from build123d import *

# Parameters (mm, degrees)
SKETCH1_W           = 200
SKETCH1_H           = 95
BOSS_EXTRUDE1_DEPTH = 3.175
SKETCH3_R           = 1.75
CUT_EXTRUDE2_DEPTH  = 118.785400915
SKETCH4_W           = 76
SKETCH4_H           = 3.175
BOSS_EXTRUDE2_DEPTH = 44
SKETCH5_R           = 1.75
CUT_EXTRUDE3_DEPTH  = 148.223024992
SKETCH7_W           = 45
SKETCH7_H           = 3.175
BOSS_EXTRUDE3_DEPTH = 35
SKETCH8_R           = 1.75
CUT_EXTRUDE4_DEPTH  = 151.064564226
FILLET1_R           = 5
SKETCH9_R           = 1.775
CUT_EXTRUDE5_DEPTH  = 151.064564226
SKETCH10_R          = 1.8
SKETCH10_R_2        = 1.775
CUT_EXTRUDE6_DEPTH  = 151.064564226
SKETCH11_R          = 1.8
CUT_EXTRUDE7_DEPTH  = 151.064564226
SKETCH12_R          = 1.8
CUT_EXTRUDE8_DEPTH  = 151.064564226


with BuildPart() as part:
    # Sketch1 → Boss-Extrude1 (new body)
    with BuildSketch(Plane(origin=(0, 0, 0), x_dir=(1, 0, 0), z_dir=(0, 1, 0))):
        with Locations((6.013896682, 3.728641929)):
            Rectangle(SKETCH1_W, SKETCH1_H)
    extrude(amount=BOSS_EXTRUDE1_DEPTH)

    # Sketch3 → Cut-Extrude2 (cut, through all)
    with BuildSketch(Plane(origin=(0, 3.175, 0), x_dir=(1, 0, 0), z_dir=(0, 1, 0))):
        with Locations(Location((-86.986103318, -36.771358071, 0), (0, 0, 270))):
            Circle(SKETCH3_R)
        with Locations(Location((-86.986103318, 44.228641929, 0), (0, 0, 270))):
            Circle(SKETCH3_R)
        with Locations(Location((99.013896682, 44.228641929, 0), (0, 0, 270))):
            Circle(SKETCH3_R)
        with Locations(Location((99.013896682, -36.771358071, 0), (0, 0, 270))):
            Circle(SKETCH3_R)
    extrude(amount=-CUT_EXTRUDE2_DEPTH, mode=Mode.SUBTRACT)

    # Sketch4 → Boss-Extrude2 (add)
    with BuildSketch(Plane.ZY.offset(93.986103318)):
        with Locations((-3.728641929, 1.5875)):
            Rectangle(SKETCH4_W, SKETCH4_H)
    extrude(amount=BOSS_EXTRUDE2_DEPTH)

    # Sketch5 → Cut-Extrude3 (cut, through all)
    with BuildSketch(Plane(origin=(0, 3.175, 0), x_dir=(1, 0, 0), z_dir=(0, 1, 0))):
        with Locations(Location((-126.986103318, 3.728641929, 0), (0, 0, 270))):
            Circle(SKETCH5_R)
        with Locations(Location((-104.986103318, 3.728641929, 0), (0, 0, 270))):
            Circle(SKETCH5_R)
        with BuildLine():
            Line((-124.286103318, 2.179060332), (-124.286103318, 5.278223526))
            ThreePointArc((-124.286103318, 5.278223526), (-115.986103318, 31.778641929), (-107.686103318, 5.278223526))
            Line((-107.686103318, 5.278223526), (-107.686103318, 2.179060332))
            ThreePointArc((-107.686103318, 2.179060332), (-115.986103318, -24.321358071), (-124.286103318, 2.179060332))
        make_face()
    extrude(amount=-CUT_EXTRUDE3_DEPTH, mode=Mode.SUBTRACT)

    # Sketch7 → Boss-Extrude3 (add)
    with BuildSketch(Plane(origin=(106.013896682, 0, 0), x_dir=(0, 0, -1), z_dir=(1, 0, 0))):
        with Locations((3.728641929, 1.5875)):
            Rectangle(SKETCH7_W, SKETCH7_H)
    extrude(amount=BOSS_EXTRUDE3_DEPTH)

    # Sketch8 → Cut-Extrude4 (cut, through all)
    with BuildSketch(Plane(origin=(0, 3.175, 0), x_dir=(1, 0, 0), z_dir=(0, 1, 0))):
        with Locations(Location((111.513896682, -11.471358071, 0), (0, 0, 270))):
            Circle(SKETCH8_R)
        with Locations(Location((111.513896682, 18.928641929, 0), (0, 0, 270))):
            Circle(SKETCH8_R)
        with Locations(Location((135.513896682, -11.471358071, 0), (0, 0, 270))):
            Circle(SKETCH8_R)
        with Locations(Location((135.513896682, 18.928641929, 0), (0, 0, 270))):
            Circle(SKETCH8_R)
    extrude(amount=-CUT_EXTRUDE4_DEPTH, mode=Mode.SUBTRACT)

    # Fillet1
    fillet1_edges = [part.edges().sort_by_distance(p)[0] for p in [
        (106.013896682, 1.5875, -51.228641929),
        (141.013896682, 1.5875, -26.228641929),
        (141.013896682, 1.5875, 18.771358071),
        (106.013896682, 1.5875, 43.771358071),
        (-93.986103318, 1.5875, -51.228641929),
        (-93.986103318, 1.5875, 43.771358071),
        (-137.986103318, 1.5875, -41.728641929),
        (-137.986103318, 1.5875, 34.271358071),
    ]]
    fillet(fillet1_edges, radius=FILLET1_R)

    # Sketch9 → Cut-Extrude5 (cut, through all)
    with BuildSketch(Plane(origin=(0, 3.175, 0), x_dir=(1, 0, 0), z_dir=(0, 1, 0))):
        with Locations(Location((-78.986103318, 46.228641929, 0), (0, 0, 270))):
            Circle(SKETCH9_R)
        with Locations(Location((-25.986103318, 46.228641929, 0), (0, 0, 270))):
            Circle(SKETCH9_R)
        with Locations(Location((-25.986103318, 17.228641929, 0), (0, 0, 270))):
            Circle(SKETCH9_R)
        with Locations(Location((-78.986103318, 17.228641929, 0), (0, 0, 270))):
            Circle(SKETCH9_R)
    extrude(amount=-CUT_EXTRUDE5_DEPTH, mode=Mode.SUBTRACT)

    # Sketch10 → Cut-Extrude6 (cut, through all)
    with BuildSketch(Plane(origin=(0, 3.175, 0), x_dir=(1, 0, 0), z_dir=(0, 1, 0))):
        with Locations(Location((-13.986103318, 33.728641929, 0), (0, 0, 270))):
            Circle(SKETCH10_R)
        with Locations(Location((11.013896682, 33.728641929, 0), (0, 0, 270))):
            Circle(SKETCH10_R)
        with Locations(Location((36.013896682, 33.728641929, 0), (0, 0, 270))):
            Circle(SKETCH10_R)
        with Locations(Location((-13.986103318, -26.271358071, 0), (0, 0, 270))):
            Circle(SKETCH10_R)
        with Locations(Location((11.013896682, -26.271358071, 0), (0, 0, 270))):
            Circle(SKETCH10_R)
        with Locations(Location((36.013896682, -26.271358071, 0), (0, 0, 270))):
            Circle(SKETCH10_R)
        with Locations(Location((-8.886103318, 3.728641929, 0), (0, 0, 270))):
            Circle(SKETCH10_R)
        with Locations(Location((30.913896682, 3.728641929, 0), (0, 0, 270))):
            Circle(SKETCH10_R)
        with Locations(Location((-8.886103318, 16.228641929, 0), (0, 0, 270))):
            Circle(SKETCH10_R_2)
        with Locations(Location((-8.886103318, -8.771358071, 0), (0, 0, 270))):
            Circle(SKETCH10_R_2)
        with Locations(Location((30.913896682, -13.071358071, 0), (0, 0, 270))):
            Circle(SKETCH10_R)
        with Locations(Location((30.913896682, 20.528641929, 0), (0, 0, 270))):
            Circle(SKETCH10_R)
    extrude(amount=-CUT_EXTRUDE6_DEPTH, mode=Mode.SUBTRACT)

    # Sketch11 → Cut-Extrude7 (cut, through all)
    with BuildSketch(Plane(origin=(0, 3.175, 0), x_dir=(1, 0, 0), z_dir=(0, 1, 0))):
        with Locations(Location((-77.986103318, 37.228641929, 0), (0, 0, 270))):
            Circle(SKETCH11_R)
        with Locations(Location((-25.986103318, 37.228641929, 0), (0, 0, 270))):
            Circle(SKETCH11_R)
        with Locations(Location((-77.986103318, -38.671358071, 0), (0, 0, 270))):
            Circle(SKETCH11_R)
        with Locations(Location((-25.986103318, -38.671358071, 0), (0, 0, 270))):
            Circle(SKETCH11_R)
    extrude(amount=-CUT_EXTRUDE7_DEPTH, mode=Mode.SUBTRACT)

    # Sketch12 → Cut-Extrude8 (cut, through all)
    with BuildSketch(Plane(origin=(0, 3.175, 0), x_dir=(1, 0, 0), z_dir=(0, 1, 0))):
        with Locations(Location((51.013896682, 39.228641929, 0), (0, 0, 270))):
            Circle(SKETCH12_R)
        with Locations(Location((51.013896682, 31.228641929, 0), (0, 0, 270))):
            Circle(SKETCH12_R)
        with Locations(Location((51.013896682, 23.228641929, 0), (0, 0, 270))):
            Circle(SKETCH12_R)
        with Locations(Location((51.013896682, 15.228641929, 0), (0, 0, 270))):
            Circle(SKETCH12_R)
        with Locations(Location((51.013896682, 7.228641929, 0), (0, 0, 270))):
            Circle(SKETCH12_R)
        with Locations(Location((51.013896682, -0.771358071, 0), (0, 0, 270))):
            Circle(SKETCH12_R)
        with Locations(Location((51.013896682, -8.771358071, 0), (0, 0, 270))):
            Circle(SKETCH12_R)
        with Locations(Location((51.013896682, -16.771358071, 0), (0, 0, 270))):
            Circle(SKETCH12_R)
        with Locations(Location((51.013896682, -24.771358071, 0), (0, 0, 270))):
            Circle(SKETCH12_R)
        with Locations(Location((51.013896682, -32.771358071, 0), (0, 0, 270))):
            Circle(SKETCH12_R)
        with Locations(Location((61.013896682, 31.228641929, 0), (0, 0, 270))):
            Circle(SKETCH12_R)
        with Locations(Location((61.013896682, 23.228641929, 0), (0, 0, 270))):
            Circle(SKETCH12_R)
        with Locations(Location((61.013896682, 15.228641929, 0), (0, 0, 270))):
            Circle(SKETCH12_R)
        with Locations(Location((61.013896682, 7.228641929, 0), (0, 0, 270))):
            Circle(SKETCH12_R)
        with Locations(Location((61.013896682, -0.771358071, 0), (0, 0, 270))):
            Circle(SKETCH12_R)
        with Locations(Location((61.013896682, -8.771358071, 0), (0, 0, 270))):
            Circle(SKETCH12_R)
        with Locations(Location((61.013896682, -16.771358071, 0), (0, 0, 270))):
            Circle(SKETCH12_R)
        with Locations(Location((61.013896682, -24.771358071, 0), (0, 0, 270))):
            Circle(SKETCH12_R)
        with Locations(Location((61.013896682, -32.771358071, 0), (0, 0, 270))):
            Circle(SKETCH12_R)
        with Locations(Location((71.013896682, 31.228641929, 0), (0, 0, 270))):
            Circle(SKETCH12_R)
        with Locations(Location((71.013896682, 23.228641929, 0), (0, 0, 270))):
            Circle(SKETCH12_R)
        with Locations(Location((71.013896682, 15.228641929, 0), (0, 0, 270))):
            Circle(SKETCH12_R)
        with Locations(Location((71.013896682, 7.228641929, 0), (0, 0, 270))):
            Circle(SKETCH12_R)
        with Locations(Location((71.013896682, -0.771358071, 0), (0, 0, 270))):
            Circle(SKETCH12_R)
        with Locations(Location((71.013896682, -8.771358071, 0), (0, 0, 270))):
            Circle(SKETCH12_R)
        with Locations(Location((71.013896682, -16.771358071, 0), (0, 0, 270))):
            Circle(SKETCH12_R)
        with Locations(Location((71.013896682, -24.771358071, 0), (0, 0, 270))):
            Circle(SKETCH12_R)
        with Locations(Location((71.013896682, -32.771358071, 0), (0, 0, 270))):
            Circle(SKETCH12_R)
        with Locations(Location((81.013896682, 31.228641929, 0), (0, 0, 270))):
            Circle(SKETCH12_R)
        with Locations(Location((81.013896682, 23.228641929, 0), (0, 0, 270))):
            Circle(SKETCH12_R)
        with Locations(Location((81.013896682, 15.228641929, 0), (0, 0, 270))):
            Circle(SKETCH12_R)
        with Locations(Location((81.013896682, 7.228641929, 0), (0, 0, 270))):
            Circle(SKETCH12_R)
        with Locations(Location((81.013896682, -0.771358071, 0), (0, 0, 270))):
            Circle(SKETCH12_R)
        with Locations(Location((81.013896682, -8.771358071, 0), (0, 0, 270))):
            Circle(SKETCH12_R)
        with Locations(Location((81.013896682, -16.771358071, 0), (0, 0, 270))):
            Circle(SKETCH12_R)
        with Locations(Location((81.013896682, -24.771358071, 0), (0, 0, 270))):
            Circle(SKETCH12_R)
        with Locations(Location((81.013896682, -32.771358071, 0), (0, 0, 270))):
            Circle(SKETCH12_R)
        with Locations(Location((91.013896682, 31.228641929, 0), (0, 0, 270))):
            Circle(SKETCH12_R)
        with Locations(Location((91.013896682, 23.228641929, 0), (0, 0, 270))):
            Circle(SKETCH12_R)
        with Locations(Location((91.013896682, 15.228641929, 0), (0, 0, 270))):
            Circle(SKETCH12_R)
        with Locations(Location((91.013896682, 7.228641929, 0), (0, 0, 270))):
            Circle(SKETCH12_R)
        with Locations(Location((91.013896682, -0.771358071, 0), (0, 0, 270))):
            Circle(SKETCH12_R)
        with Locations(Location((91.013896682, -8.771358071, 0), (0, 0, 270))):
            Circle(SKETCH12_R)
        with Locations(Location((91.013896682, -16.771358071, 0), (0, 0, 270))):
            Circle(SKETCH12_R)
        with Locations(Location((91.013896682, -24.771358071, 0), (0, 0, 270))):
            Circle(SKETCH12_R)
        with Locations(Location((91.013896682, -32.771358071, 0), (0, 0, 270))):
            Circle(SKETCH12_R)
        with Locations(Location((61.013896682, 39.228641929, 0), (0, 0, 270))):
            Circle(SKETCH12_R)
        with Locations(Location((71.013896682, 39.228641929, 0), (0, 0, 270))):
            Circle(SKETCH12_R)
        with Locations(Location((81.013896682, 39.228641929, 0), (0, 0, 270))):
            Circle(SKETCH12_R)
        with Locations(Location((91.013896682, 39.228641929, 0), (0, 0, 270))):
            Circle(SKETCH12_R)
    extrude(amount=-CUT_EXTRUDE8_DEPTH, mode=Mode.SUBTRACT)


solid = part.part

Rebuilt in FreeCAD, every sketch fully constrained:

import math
import FreeCAD as App
import Part
import Sketcher
from FreeCAD import Vector


def edges_at(feature, points):
    """Names of the edges that pass closest to the given points."""
    edges = feature.Shape.Edges
    near = lambda p: min(range(len(edges)), key=lambda i: edges[i].distToShape(Part.Vertex(*p))[0])
    return sorted({f"Edge{near(p) + 1}" for p in points})


def add_polygon(sketch, points):
    """Adds a closed chain of lines whose ends are joined by coincident constraints."""
    first, n = sketch.GeometryCount, len(points)
    for a, b in zip(points, points[1:] + points[:1]):
        sketch.addGeometry(Part.LineSegment(App.Vector(*a, 0), App.Vector(*b, 0)), False)
    for i in range(n):
        sketch.addConstraint(Sketcher.Constraint("Coincident", first + i, 2, first + (i + 1) % n, 1))

doc = App.newDocument("Part")
body = doc.addObject("PartDesign::Body", "Body")

sketch1 = doc.addObject("Sketcher::SketchObject", "Sketch")
body.addObject(sketch1)
sketch1.AttachmentSupport = (doc.XZ_Plane, [""])
sketch1.MapMode = "FlatFace"
add_polygon(sketch1, [(-94, -51), (-94, 44), (106, 44), (106, -51)])
sketch1.addConstraint([
    Sketcher.Constraint("Vertical", 0),
    Sketcher.Constraint("Horizontal", 1),
    Sketcher.Constraint("Vertical", 2),
    Sketcher.Constraint("Horizontal", 3),
    Sketcher.Constraint("DistanceX", 1, 1, 1, 2, 200.0),
    Sketcher.Constraint("DistanceY", 0, 1, 0, 2, 95.0),
    Sketcher.Constraint("DistanceY", -1, 1, 0, 2, 43.771358),
    Sketcher.Constraint("DistanceX", 0, 2, -1, 1, 93.986103),
])
pad1 = doc.addObject("PartDesign::Pad", "Pad")
body.addObject(pad1)
pad1.Profile = sketch1
pad1.Length = 3.175
pad1.Reversed = True

sketch2 = doc.addObject("Sketcher::SketchObject", "Sketch001")
body.addObject(sketch2)
sketch2.AttachmentSupport = (doc.XZ_Plane, [""])
sketch2.MapMode = "FlatFace"
sketch2.AttachmentOffset = App.Placement(Vector(0, 0, -3.175), App.Rotation())
sketch2.addGeometry([
    Part.Circle(Vector(-87, 36.8, 0), Vector(0, 0, 1), 1.8),
    Part.Circle(Vector(-87, -44.2, 0), Vector(0, 0, 1), 1.8),
    Part.Circle(Vector(99, -44.2, 0), Vector(0, 0, 1), 1.8),
    Part.Circle(Vector(99, 36.8, 0), Vector(0, 0, 1), 1.8),
], False)
sketch2.addConstraint([
    Sketcher.Constraint("Equal", 0, 1),
    Sketcher.Constraint("Equal", 1, 2),
    Sketcher.Constraint("Equal", 2, 3),
    Sketcher.Constraint("Horizontal", 1, 3, 2, 3),
    Sketcher.Constraint("Horizontal", 0, 3, 3, 3),
    Sketcher.Constraint("Vertical", 0, 3, 1, 3),
    Sketcher.Constraint("Vertical", 2, 3, 3, 3),
    Sketcher.Constraint("Diameter", 0, 3.5),
    Sketcher.Constraint("DistanceY", 1, 3, 0, 3, 81.0),
    Sketcher.Constraint("DistanceX", 1, 3, 2, 3, 186.0),
    Sketcher.Constraint("DistanceY", -1, 1, 0, 3, 36.771358),
    Sketcher.Constraint("DistanceX", 0, 3, -1, 1, 86.986103),
])
pocket1 = doc.addObject("PartDesign::Pocket", "Pocket")
body.addObject(pocket1)
pocket1.Profile = sketch2
pocket1.Type = "ThroughAll"
pocket1.Reversed = True

sketch3 = doc.addObject("Sketcher::SketchObject", "Sketch002")
body.addObject(sketch3)
sketch3.AttachmentSupport = (doc.YZ_Plane, [""])
sketch3.MapMode = "FlatFace"
sketch3.AttachmentOffset = App.Placement(Vector(0, 0, -93.986103), App.Rotation())
add_polygon(sketch3, [(3.2, -41.7), (0, -41.7), (0, 34.3), (3.2, 34.3)])
sketch3.addConstraint([
    Sketcher.Constraint("Horizontal", 0),
    Sketcher.Constraint("Vertical", 1),
    Sketcher.Constraint("Horizontal", 2),
    Sketcher.Constraint("Vertical", 3),
    Sketcher.Constraint("PointOnObject", 0, 2, -2),
    Sketcher.Constraint("DistanceY", 1, 1, 1, 2, 76.0),
    Sketcher.Constraint("DistanceX", 0, 2, 0, 1, 3.175),
    Sketcher.Constraint("DistanceY", 0, 2, -1, 1, 41.728642),
])
pad2 = doc.addObject("PartDesign::Pad", "Pad001")
body.addObject(pad2)
pad2.Profile = sketch3
pad2.Length = 44
pad2.Reversed = True

sketch4 = doc.addObject("Sketcher::SketchObject", "Sketch003")
body.addObject(sketch4)
sketch4.AttachmentSupport = (doc.XZ_Plane, [""])
sketch4.MapMode = "FlatFace"
sketch4.AttachmentOffset = App.Placement(Vector(0, 0, -3.175), App.Rotation())
sketch4.addGeometry([
    Part.Circle(Vector(-127, -3.7, 0), Vector(0, 0, 1), 1.8),
    Part.Circle(Vector(-105, -3.7, 0), Vector(0, 0, 1), 1.8),
    Part.LineSegment(Vector(-124.3, -5.3, 0), Vector(-124.3, -2.2, 0)),
    Part.ArcOfCircle(Part.Circle(Vector(-116, 9.8, 0), Vector(0, 0, 1), 14.6), math.radians(-55), math.radians(235)),
    Part.LineSegment(Vector(-107.7, -2.2, 0), Vector(-107.7, -5.3, 0)),
    Part.ArcOfCircle(Part.Circle(Vector(-116, -17.2, 0), Vector(0, 0, 1), 14.6), math.radians(125), math.radians(415)),
], False)
sketch4.addConstraint([
    Sketcher.Constraint("Coincident", 2, 2, 3, 2),
    Sketcher.Constraint("Coincident", 3, 1, 4, 1),
    Sketcher.Constraint("Coincident", 4, 2, 5, 2),
    Sketcher.Constraint("Coincident", 5, 1, 2, 1),
    Sketcher.Constraint("Vertical", 2),
    Sketcher.Constraint("Vertical", 4),
    Sketcher.Constraint("Equal", 0, 1),
    Sketcher.Constraint("Equal", 3, 5),
    Sketcher.Constraint("Horizontal", 0, 3, 1, 3),
    Sketcher.Constraint("Horizontal", 2, 2, 3, 1),
    Sketcher.Constraint("Horizontal", 4, 2, 5, 1),
    Sketcher.Constraint("Diameter", 0, 3.5),
    Sketcher.Constraint("Radius", 3, 14.55),
    Sketcher.Constraint("DistanceX", 0, 3, 1, 3, 22.0),
    Sketcher.Constraint("DistanceX", 0, 3, 3, 3, 11.0),
    Sketcher.Constraint("DistanceY", 5, 3, 3, 3, 27.0),
    Sketcher.Constraint("DistanceY", 0, 3, 3, 3, 13.5),
    Sketcher.Constraint("DistanceX", 0, 3, 2, 2, 2.7),
    Sketcher.Constraint("DistanceY", 0, 3, -1, 1, 3.728642),
    Sketcher.Constraint("DistanceX", 0, 3, -1, 1, 126.986103),
])
pocket2 = doc.addObject("PartDesign::Pocket", "Pocket001")
body.addObject(pocket2)
pocket2.Profile = sketch4
pocket2.Type = "ThroughAll"
pocket2.Reversed = True

sketch5 = doc.addObject("Sketcher::SketchObject", "Sketch004")
body.addObject(sketch5)
sketch5.AttachmentSupport = (doc.YZ_Plane, [""])
sketch5.MapMode = "FlatFace"
sketch5.AttachmentOffset = App.Placement(Vector(0, 0, 106.013897), App.Rotation())
add_polygon(sketch5, [(3.2, 18.8), (0, 18.8), (0, -26.2), (3.2, -26.2)])
sketch5.addConstraint([
    Sketcher.Constraint("Horizontal", 0),
    Sketcher.Constraint("Vertical", 1),
    Sketcher.Constraint("Horizontal", 2),
    Sketcher.Constraint("Vertical", 3),
    Sketcher.Constraint("PointOnObject", 0, 2, -2),
    Sketcher.Constraint("DistanceY", 1, 2, 1, 1, 45.0),
    Sketcher.Constraint("DistanceX", 0, 2, 0, 1, 3.175),
    Sketcher.Constraint("DistanceY", -1, 1, 0, 2, 18.771358),
])
pad3 = doc.addObject("PartDesign::Pad", "Pad002")
body.addObject(pad3)
pad3.Profile = sketch5
pad3.Length = 35

sketch6 = doc.addObject("Sketcher::SketchObject", "Sketch005")
body.addObject(sketch6)
sketch6.AttachmentSupport = (doc.XZ_Plane, [""])
sketch6.MapMode = "FlatFace"
sketch6.AttachmentOffset = App.Placement(Vector(0, 0, -3.175), App.Rotation())
sketch6.addGeometry([
    Part.Circle(Vector(111.5, 11.5, 0), Vector(0, 0, 1), 1.8),
    Part.Circle(Vector(111.5, -18.9, 0), Vector(0, 0, 1), 1.8),
    Part.Circle(Vector(135.5, 11.5, 0), Vector(0, 0, 1), 1.8),
    Part.Circle(Vector(135.5, -18.9, 0), Vector(0, 0, 1), 1.8),
], False)
sketch6.addConstraint([
    Sketcher.Constraint("Equal", 0, 1),
    Sketcher.Constraint("Equal", 1, 2),
    Sketcher.Constraint("Equal", 2, 3),
    Sketcher.Constraint("Horizontal", 0, 3, 2, 3),
    Sketcher.Constraint("Horizontal", 1, 3, 3, 3),
    Sketcher.Constraint("Vertical", 0, 3, 1, 3),
    Sketcher.Constraint("Vertical", 2, 3, 3, 3),
    Sketcher.Constraint("Diameter", 0, 3.5),
    Sketcher.Constraint("DistanceX", 0, 3, 2, 3, 24.0),
    Sketcher.Constraint("DistanceY", 1, 3, 0, 3, 30.4),
    Sketcher.Constraint("DistanceY", -1, 1, 0, 3, 11.471358),
    Sketcher.Constraint("DistanceX", -1, 1, 0, 3, 111.513897),
])
pocket3 = doc.addObject("PartDesign::Pocket", "Pocket002")
body.addObject(pocket3)
pocket3.Profile = sketch6
pocket3.Type = "ThroughAll"
pocket3.Reversed = True
doc.recompute()

fillet = doc.addObject("PartDesign::Fillet", "Fillet")
body.addObject(fillet)
fillet.Base = (pocket3, edges_at(pocket3, [
    (106.014, 1.587, -51.229),
    (141.014, 1.587, -26.229),
    (141.014, 1.587, 18.771),
    (106.014, 1.587, 43.771),
    (-93.986, 1.587, -51.229),
    (-93.986, 1.587, 43.771),
    (-137.986, 1.587, -41.729),
    (-137.986, 1.587, 34.271),
]))
fillet.Radius = 5

sketch7 = doc.addObject("Sketcher::SketchObject", "Sketch006")
body.addObject(sketch7)
sketch7.AttachmentSupport = (doc.XZ_Plane, [""])
sketch7.MapMode = "FlatFace"
sketch7.AttachmentOffset = App.Placement(Vector(0, 0, -3.175), App.Rotation())
sketch7.addGeometry([
    Part.Circle(Vector(-79, -46.2, 0), Vector(0, 0, 1), 1.8),
    Part.Circle(Vector(-26, -46.2, 0), Vector(0, 0, 1), 1.8),
    Part.Circle(Vector(-26, -17.2, 0), Vector(0, 0, 1), 1.8),
    Part.Circle(Vector(-79, -17.2, 0), Vector(0, 0, 1), 1.8),
], False)
sketch7.addConstraint([
    Sketcher.Constraint("Equal", 0, 1),
    Sketcher.Constraint("Equal", 1, 2),
    Sketcher.Constraint("Equal", 2, 3),
    Sketcher.Constraint("Horizontal", 0, 3, 1, 3),
    Sketcher.Constraint("Horizontal", 2, 3, 3, 3),
    Sketcher.Constraint("Vertical", 1, 3, 2, 3),
    Sketcher.Constraint("Vertical", 0, 3, 3, 3),
    Sketcher.Constraint("Diameter", 0, 3.55),
    Sketcher.Constraint("DistanceX", 0, 3, 1, 3, 53.0),
    Sketcher.Constraint("DistanceY", 1, 3, 2, 3, 29.0),
    Sketcher.Constraint("DistanceY", 0, 3, -1, 1, 46.228642),
    Sketcher.Constraint("DistanceX", 0, 3, -1, 1, 78.986103),
])
pocket4 = doc.addObject("PartDesign::Pocket", "Pocket003")
body.addObject(pocket4)
pocket4.Profile = sketch7
pocket4.Type = "ThroughAll"
pocket4.Reversed = True

sketch8 = doc.addObject("Sketcher::SketchObject", "Sketch007")
body.addObject(sketch8)
sketch8.AttachmentSupport = (doc.XZ_Plane, [""])
sketch8.MapMode = "FlatFace"
sketch8.AttachmentOffset = App.Placement(Vector(0, 0, -3.175), App.Rotation())
sketch8.addGeometry([
    Part.Circle(Vector(-14, -33.7, 0), Vector(0, 0, 1), 1.8),
    Part.Circle(Vector(11, -33.7, 0), Vector(0, 0, 1), 1.8),
    Part.Circle(Vector(36, -33.7, 0), Vector(0, 0, 1), 1.8),
    Part.Circle(Vector(-14, 26.3, 0), Vector(0, 0, 1), 1.8),
    Part.Circle(Vector(11, 26.3, 0), Vector(0, 0, 1), 1.8),
    Part.Circle(Vector(36, 26.3, 0), Vector(0, 0, 1), 1.8),
    Part.Circle(Vector(-8.9, -3.7, 0), Vector(0, 0, 1), 1.8),
    Part.Circle(Vector(30.9, -3.7, 0), Vector(0, 0, 1), 1.8),
    Part.Circle(Vector(-8.9, -16.2, 0), Vector(0, 0, 1), 1.8),
    Part.Circle(Vector(-8.9, 8.8, 0), Vector(0, 0, 1), 1.8),
    Part.Circle(Vector(30.9, 13.1, 0), Vector(0, 0, 1), 1.8),
    Part.Circle(Vector(30.9, -20.5, 0), Vector(0, 0, 1), 1.8),
], False)
sketch8.addConstraint([
    Sketcher.Constraint("Equal", 0, 1),
    Sketcher.Constraint("Equal", 1, 2),
    Sketcher.Constraint("Equal", 2, 3),
    Sketcher.Constraint("Equal", 3, 4),
    Sketcher.Constraint("Equal", 4, 5),
    Sketcher.Constraint("Equal", 5, 6),
    Sketcher.Constraint("Equal", 6, 7),
    Sketcher.Constraint("Equal", 8, 9),
    Sketcher.Constraint("Equal", 7, 10),
    Sketcher.Constraint("Equal", 10, 11),
    Sketcher.Constraint("Horizontal", 0, 3, 1, 3),
    Sketcher.Constraint("Horizontal", 1, 3, 2, 3),
    Sketcher.Constraint("Horizontal", 3, 3, 4, 3),
    Sketcher.Constraint("Horizontal", 4, 3, 5, 3),
    Sketcher.Constraint("Horizontal", 6, 3, 7, 3),
    Sketcher.Constraint("Vertical", 0, 3, 3, 3),
    Sketcher.Constraint("Vertical", 1, 3, 4, 3),
    Sketcher.Constraint("Vertical", 2, 3, 5, 3),
    Sketcher.Constraint("Vertical", 6, 3, 8, 3),
    Sketcher.Constraint("Vertical", 8, 3, 9, 3),
    Sketcher.Constraint("Vertical", 7, 3, 10, 3),
    Sketcher.Constraint("Vertical", 10, 3, 11, 3),
    Sketcher.Constraint("Diameter", 0, 3.6),
    Sketcher.Constraint("Diameter", 8, 3.55),
    Sketcher.Constraint("DistanceX", 0, 3, 1, 3, 25.0),
    Sketcher.Constraint("DistanceX", 1, 3, 2, 3, 25.0),
    Sketcher.Constraint("DistanceY", 0, 3, 3, 3, 60.0),
    Sketcher.Constraint("DistanceY", 0, 3, 6, 3, 30.0),
    Sketcher.Constraint("DistanceY", 8, 3, 9, 3, 25.0),
    Sketcher.Constraint("DistanceX", 0, 3, 6, 3, 5.1),
    Sketcher.Constraint("DistanceX", 7, 3, 2, 3, 5.1),
    Sketcher.Constraint("DistanceY", 8, 3, 6, 3, 12.5),
    Sketcher.Constraint("DistanceY", 10, 3, 5, 3, 13.2),
    Sketcher.Constraint("DistanceY", 2, 3, 11, 3, 13.2),
    Sketcher.Constraint("DistanceY", 0, 3, -1, 1, 33.728642),
    Sketcher.Constraint("DistanceX", 0, 3, -1, 1, 13.986103),
])
pocket5 = doc.addObject("PartDesign::Pocket", "Pocket004")
body.addObject(pocket5)
pocket5.Profile = sketch8
pocket5.Type = "ThroughAll"
pocket5.Reversed = True

sketch9 = doc.addObject("Sketcher::SketchObject", "Sketch008")
body.addObject(sketch9)
sketch9.AttachmentSupport = (doc.XZ_Plane, [""])
sketch9.MapMode = "FlatFace"
sketch9.AttachmentOffset = App.Placement(Vector(0, 0, -3.175), App.Rotation())
sketch9.addGeometry([
    Part.Circle(Vector(-78, -37.2, 0), Vector(0, 0, 1), 1.8),
    Part.Circle(Vector(-26, -37.2, 0), Vector(0, 0, 1), 1.8),
    Part.Circle(Vector(-78, 38.7, 0), Vector(0, 0, 1), 1.8),
    Part.Circle(Vector(-26, 38.7, 0), Vector(0, 0, 1), 1.8),
], False)
sketch9.addConstraint([
    Sketcher.Constraint("Equal", 0, 1),
    Sketcher.Constraint("Equal", 1, 2),
    Sketcher.Constraint("Equal", 2, 3),
    Sketcher.Constraint("Horizontal", 0, 3, 1, 3),
    Sketcher.Constraint("Horizontal", 2, 3, 3, 3),
    Sketcher.Constraint("Vertical", 0, 3, 2, 3),
    Sketcher.Constraint("Vertical", 1, 3, 3, 3),
    Sketcher.Constraint("Diameter", 0, 3.6),
    Sketcher.Constraint("DistanceX", 0, 3, 1, 3, 52.0),
    Sketcher.Constraint("DistanceY", 0, 3, 2, 3, 75.9),
    Sketcher.Constraint("DistanceY", 0, 3, -1, 1, 37.228642),
    Sketcher.Constraint("DistanceX", 0, 3, -1, 1, 77.986103),
])
pocket6 = doc.addObject("PartDesign::Pocket", "Pocket005")
body.addObject(pocket6)
pocket6.Profile = sketch9
pocket6.Type = "ThroughAll"
pocket6.Reversed = True

sketch10 = doc.addObject("Sketcher::SketchObject", "Sketch009")
body.addObject(sketch10)
sketch10.AttachmentSupport = (doc.XZ_Plane, [""])
sketch10.MapMode = "FlatFace"
sketch10.AttachmentOffset = App.Placement(Vector(0, 0, -3.175), App.Rotation())
sketch10.addGeometry([
    Part.Circle(Vector(51, -39.2, 0), Vector(0, 0, 1), 1.8),
    Part.Circle(Vector(51, -31.2, 0), Vector(0, 0, 1), 1.8),
    Part.Circle(Vector(51, -23.2, 0), Vector(0, 0, 1), 1.8),
    Part.Circle(Vector(51, -15.2, 0), Vector(0, 0, 1), 1.8),
    Part.Circle(Vector(51, -7.2, 0), Vector(0, 0, 1), 1.8),
    Part.Circle(Vector(51, 0.8, 0), Vector(0, 0, 1), 1.8),
    Part.Circle(Vector(51, 8.8, 0), Vector(0, 0, 1), 1.8),
    Part.Circle(Vector(51, 16.8, 0), Vector(0, 0, 1), 1.8),
    Part.Circle(Vector(51, 24.8, 0), Vector(0, 0, 1), 1.8),
    Part.Circle(Vector(51, 32.8, 0), Vector(0, 0, 1), 1.8),
    Part.Circle(Vector(61, -31.2, 0), Vector(0, 0, 1), 1.8),
    Part.Circle(Vector(61, -23.2, 0), Vector(0, 0, 1), 1.8),
    Part.Circle(Vector(61, -15.2, 0), Vector(0, 0, 1), 1.8),
    Part.Circle(Vector(61, -7.2, 0), Vector(0, 0, 1), 1.8),
    Part.Circle(Vector(61, 0.8, 0), Vector(0, 0, 1), 1.8),
    Part.Circle(Vector(61, 8.8, 0), Vector(0, 0, 1), 1.8),
    Part.Circle(Vector(61, 16.8, 0), Vector(0, 0, 1), 1.8),
    Part.Circle(Vector(61, 24.8, 0), Vector(0, 0, 1), 1.8),
    Part.Circle(Vector(61, 32.8, 0), Vector(0, 0, 1), 1.8),
    Part.Circle(Vector(71, -31.2, 0), Vector(0, 0, 1), 1.8),
    Part.Circle(Vector(71, -23.2, 0), Vector(0, 0, 1), 1.8),
    Part.Circle(Vector(71, -15.2, 0), Vector(0, 0, 1), 1.8),
    Part.Circle(Vector(71, -7.2, 0), Vector(0, 0, 1), 1.8),
    Part.Circle(Vector(71, 0.8, 0), Vector(0, 0, 1), 1.8),
    Part.Circle(Vector(71, 8.8, 0), Vector(0, 0, 1), 1.8),
    Part.Circle(Vector(71, 16.8, 0), Vector(0, 0, 1), 1.8),
    Part.Circle(Vector(71, 24.8, 0), Vector(0, 0, 1), 1.8),
    Part.Circle(Vector(71, 32.8, 0), Vector(0, 0, 1), 1.8),
    Part.Circle(Vector(81, -31.2, 0), Vector(0, 0, 1), 1.8),
    Part.Circle(Vector(81, -23.2, 0), Vector(0, 0, 1), 1.8),
    Part.Circle(Vector(81, -15.2, 0), Vector(0, 0, 1), 1.8),
    Part.Circle(Vector(81, -7.2, 0), Vector(0, 0, 1), 1.8),
    Part.Circle(Vector(81, 0.8, 0), Vector(0, 0, 1), 1.8),
    Part.Circle(Vector(81, 8.8, 0), Vector(0, 0, 1), 1.8),
    Part.Circle(Vector(81, 16.8, 0), Vector(0, 0, 1), 1.8),
    Part.Circle(Vector(81, 24.8, 0), Vector(0, 0, 1), 1.8),
    Part.Circle(Vector(81, 32.8, 0), Vector(0, 0, 1), 1.8),
    Part.Circle(Vector(91, -31.2, 0), Vector(0, 0, 1), 1.8),
    Part.Circle(Vector(91, -23.2, 0), Vector(0, 0, 1), 1.8),
    Part.Circle(Vector(91, -15.2, 0), Vector(0, 0, 1), 1.8),
    Part.Circle(Vector(91, -7.2, 0), Vector(0, 0, 1), 1.8),
    Part.Circle(Vector(91, 0.8, 0), Vector(0, 0, 1), 1.8),
    Part.Circle(Vector(91, 8.8, 0), Vector(0, 0, 1), 1.8),
    Part.Circle(Vector(91, 16.8, 0), Vector(0, 0, 1), 1.8),
    Part.Circle(Vector(91, 24.8, 0), Vector(0, 0, 1), 1.8),
    Part.Circle(Vector(91, 32.8, 0), Vector(0, 0, 1), 1.8),
    Part.Circle(Vector(61, -39.2, 0), Vector(0, 0, 1), 1.8),
    Part.Circle(Vector(71, -39.2, 0), Vector(0, 0, 1), 1.8),
    Part.Circle(Vector(81, -39.2, 0), Vector(0, 0, 1), 1.8),
    Part.Circle(Vector(91, -39.2, 0), Vector(0, 0, 1), 1.8),
], False)
sketch10.addConstraint([
    Sketcher.Constraint("Equal", 0, 1),
    Sketcher.Constraint("Equal", 1, 2),
    Sketcher.Constraint("Equal", 2, 3),
    Sketcher.Constraint("Equal", 3, 4),
    Sketcher.Constraint("Equal", 4, 5),
    Sketcher.Constraint("Equal", 5, 6),
    Sketcher.Constraint("Equal", 6, 7),
    Sketcher.Constraint("Equal", 7, 8),
    Sketcher.Constraint("Equal", 8, 9),
    Sketcher.Constraint("Equal", 9, 10),
    Sketcher.Constraint("Equal", 10, 11),
    Sketcher.Constraint("Equal", 11, 12),
    Sketcher.Constraint("Equal", 12, 13),
    Sketcher.Constraint("Equal", 13, 14),
    Sketcher.Constraint("Equal", 14, 15),
    Sketcher.Constraint("Equal", 15, 16),
    Sketcher.Constraint("Equal", 16, 17),
    Sketcher.Constraint("Equal", 17, 18),
    Sketcher.Constraint("Equal", 18, 19),
    Sketcher.Constraint("Equal", 19, 20),
    Sketcher.Constraint("Equal", 20, 21),
    Sketcher.Constraint("Equal", 21, 22),
    Sketcher.Constraint("Equal", 22, 23),
    Sketcher.Constraint("Equal", 23, 24),
    Sketcher.Constraint("Equal", 24, 25),
    Sketcher.Constraint("Equal", 25, 26),
    Sketcher.Constraint("Equal", 26, 27),
    Sketcher.Constraint("Equal", 27, 28),
    Sketcher.Constraint("Equal", 28, 29),
    Sketcher.Constraint("Equal", 29, 30),
    Sketcher.Constraint("Equal", 30, 31),
    Sketcher.Constraint("Equal", 31, 32),
    Sketcher.Constraint("Equal", 32, 33),
    Sketcher.Constraint("Equal", 33, 34),
    Sketcher.Constraint("Equal", 34, 35),
    Sketcher.Constraint("Equal", 35, 36),
    Sketcher.Constraint("Equal", 36, 37),
    Sketcher.Constraint("Equal", 37, 38),
    Sketcher.Constraint("Equal", 38, 39),
    Sketcher.Constraint("Equal", 39, 40),
    Sketcher.Constraint("Equal", 40, 41),
    Sketcher.Constraint("Equal", 41, 42),
    Sketcher.Constraint("Equal", 42, 43),
    Sketcher.Constraint("Equal", 43, 44),
    Sketcher.Constraint("Equal", 44, 45),
    Sketcher.Constraint("Equal", 45, 46),
    Sketcher.Constraint("Equal", 46, 47),
    Sketcher.Constraint("Equal", 47, 48),
    Sketcher.Constraint("Equal", 48, 49),
    Sketcher.Constraint("Horizontal", 1, 3, 10, 3),
    Sketcher.Constraint("Horizontal", 2, 3, 11, 3),
    Sketcher.Constraint("Horizontal", 3, 3, 12, 3),
    Sketcher.Constraint("Horizontal", 4, 3, 13, 3),
    Sketcher.Constraint("Horizontal", 5, 3, 14, 3),
    Sketcher.Constraint("Horizontal", 6, 3, 15, 3),
    Sketcher.Constraint("Horizontal", 7, 3, 16, 3),
    Sketcher.Constraint("Horizontal", 8, 3, 17, 3),
    Sketcher.Constraint("Horizontal", 9, 3, 18, 3),
    Sketcher.Constraint("Horizontal", 10, 3, 19, 3),
    Sketcher.Constraint("Horizontal", 11, 3, 20, 3),
    Sketcher.Constraint("Horizontal", 12, 3, 21, 3),
    Sketcher.Constraint("Horizontal", 13, 3, 22, 3),
    Sketcher.Constraint("Horizontal", 14, 3, 23, 3),
    Sketcher.Constraint("Horizontal", 15, 3, 24, 3),
    Sketcher.Constraint("Horizontal", 16, 3, 25, 3),
    Sketcher.Constraint("Horizontal", 17, 3, 26, 3),
    Sketcher.Constraint("Horizontal", 18, 3, 27, 3),
    Sketcher.Constraint("Horizontal", 19, 3, 28, 3),
    Sketcher.Constraint("Horizontal", 20, 3, 29, 3),
    Sketcher.Constraint("Horizontal", 21, 3, 30, 3),
    Sketcher.Constraint("Horizontal", 22, 3, 31, 3),
    Sketcher.Constraint("Horizontal", 23, 3, 32, 3),
    Sketcher.Constraint("Horizontal", 24, 3, 33, 3),
    Sketcher.Constraint("Horizontal", 25, 3, 34, 3),
    Sketcher.Constraint("Horizontal", 26, 3, 35, 3),
    Sketcher.Constraint("Horizontal", 27, 3, 36, 3),
    Sketcher.Constraint("Horizontal", 28, 3, 37, 3),
    Sketcher.Constraint("Horizontal", 29, 3, 38, 3),
    Sketcher.Constraint("Horizontal", 30, 3, 39, 3),
    Sketcher.Constraint("Horizontal", 31, 3, 40, 3),
    Sketcher.Constraint("Horizontal", 32, 3, 41, 3),
    Sketcher.Constraint("Horizontal", 33, 3, 42, 3),
    Sketcher.Constraint("Horizontal", 34, 3, 43, 3),
    Sketcher.Constraint("Horizontal", 35, 3, 44, 3),
    Sketcher.Constraint("Horizontal", 36, 3, 45, 3),
    Sketcher.Constraint("Horizontal", 0, 3, 46, 3),
    Sketcher.Constraint("Horizontal", 46, 3, 47, 3),
    Sketcher.Constraint("Horizontal", 47, 3, 48, 3),
    Sketcher.Constraint("Horizontal", 48, 3, 49, 3),
    Sketcher.Constraint("Vertical", 0, 3, 1, 3),
    Sketcher.Constraint("Vertical", 1, 3, 2, 3),
    Sketcher.Constraint("Vertical", 2, 3, 3, 3),
    Sketcher.Constraint("Vertical", 3, 3, 4, 3),
    Sketcher.Constraint("Vertical", 4, 3, 5, 3),
    Sketcher.Constraint("Vertical", 5, 3, 6, 3),
    Sketcher.Constraint("Vertical", 6, 3, 7, 3),
    Sketcher.Constraint("Vertical", 7, 3, 8, 3),
    Sketcher.Constraint("Vertical", 8, 3, 9, 3),
    Sketcher.Constraint("Vertical", 10, 3, 11, 3),
    Sketcher.Constraint("Vertical", 11, 3, 12, 3),
    Sketcher.Constraint("Vertical", 12, 3, 13, 3),
    Sketcher.Constraint("Vertical", 13, 3, 14, 3),
    Sketcher.Constraint("Vertical", 14, 3, 15, 3),
    Sketcher.Constraint("Vertical", 15, 3, 16, 3),
    Sketcher.Constraint("Vertical", 16, 3, 17, 3),
    Sketcher.Constraint("Vertical", 17, 3, 18, 3),
    Sketcher.Constraint("Vertical", 19, 3, 20, 3),
    Sketcher.Constraint("Vertical", 20, 3, 21, 3),
    Sketcher.Constraint("Vertical", 21, 3, 22, 3),
    Sketcher.Constraint("Vertical", 22, 3, 23, 3),
    Sketcher.Constraint("Vertical", 23, 3, 24, 3),
    Sketcher.Constraint("Vertical", 24, 3, 25, 3),
    Sketcher.Constraint("Vertical", 25, 3, 26, 3),
    Sketcher.Constraint("Vertical", 26, 3, 27, 3),
    Sketcher.Constraint("Vertical", 28, 3, 29, 3),
    Sketcher.Constraint("Vertical", 29, 3, 30, 3),
    Sketcher.Constraint("Vertical", 30, 3, 31, 3),
    Sketcher.Constraint("Vertical", 31, 3, 32, 3),
    Sketcher.Constraint("Vertical", 32, 3, 33, 3),
    Sketcher.Constraint("Vertical", 33, 3, 34, 3),
    Sketcher.Constraint("Vertical", 34, 3, 35, 3),
    Sketcher.Constraint("Vertical", 35, 3, 36, 3),
    Sketcher.Constraint("Vertical", 37, 3, 38, 3),
    Sketcher.Constraint("Vertical", 38, 3, 39, 3),
    Sketcher.Constraint("Vertical", 39, 3, 40, 3),
    Sketcher.Constraint("Vertical", 40, 3, 41, 3),
    Sketcher.Constraint("Vertical", 41, 3, 42, 3),
    Sketcher.Constraint("Vertical", 42, 3, 43, 3),
    Sketcher.Constraint("Vertical", 43, 3, 44, 3),
    Sketcher.Constraint("Vertical", 44, 3, 45, 3),
    Sketcher.Constraint("Vertical", 18, 3, 46, 3),
    Sketcher.Constraint("Vertical", 27, 3, 47, 3),
    Sketcher.Constraint("Vertical", 36, 3, 48, 3),
    Sketcher.Constraint("Vertical", 45, 3, 49, 3),
    Sketcher.Constraint("Diameter", 0, 3.6),
    Sketcher.Constraint("DistanceY", 0, 3, 1, 3, 8.0),
    Sketcher.Constraint("DistanceY", 1, 3, 2, 3, 8.0),
    Sketcher.Constraint("DistanceY", 2, 3, 3, 3, 8.0),
    Sketcher.Constraint("DistanceY", 3, 3, 4, 3, 8.0),
    Sketcher.Constraint("DistanceY", 4, 3, 5, 3, 8.0),
    Sketcher.Constraint("DistanceY", 5, 3, 6, 3, 8.0),
    Sketcher.Constraint("DistanceY", 6, 3, 7, 3, 8.0),
    Sketcher.Constraint("DistanceY", 7, 3, 8, 3, 8.0),
    Sketcher.Constraint("DistanceY", 8, 3, 9, 3, 8.0),
    Sketcher.Constraint("DistanceX", 1, 3, 10, 3, 10.0),
    Sketcher.Constraint("DistanceX", 10, 3, 19, 3, 10.0),
    Sketcher.Constraint("DistanceX", 19, 3, 28, 3, 10.0),
    Sketcher.Constraint("DistanceX", 28, 3, 37, 3, 10.0),
    Sketcher.Constraint("DistanceY", 0, 3, -1, 1, 39.228642),
    Sketcher.Constraint("DistanceX", -1, 1, 0, 3, 51.013897),
])
pocket7 = doc.addObject("PartDesign::Pocket", "Pocket006")
body.addObject(pocket7)
pocket7.Profile = sketch10
pocket7.Type = "ThroughAll"
pocket7.Reversed = True

doc.recompute()
